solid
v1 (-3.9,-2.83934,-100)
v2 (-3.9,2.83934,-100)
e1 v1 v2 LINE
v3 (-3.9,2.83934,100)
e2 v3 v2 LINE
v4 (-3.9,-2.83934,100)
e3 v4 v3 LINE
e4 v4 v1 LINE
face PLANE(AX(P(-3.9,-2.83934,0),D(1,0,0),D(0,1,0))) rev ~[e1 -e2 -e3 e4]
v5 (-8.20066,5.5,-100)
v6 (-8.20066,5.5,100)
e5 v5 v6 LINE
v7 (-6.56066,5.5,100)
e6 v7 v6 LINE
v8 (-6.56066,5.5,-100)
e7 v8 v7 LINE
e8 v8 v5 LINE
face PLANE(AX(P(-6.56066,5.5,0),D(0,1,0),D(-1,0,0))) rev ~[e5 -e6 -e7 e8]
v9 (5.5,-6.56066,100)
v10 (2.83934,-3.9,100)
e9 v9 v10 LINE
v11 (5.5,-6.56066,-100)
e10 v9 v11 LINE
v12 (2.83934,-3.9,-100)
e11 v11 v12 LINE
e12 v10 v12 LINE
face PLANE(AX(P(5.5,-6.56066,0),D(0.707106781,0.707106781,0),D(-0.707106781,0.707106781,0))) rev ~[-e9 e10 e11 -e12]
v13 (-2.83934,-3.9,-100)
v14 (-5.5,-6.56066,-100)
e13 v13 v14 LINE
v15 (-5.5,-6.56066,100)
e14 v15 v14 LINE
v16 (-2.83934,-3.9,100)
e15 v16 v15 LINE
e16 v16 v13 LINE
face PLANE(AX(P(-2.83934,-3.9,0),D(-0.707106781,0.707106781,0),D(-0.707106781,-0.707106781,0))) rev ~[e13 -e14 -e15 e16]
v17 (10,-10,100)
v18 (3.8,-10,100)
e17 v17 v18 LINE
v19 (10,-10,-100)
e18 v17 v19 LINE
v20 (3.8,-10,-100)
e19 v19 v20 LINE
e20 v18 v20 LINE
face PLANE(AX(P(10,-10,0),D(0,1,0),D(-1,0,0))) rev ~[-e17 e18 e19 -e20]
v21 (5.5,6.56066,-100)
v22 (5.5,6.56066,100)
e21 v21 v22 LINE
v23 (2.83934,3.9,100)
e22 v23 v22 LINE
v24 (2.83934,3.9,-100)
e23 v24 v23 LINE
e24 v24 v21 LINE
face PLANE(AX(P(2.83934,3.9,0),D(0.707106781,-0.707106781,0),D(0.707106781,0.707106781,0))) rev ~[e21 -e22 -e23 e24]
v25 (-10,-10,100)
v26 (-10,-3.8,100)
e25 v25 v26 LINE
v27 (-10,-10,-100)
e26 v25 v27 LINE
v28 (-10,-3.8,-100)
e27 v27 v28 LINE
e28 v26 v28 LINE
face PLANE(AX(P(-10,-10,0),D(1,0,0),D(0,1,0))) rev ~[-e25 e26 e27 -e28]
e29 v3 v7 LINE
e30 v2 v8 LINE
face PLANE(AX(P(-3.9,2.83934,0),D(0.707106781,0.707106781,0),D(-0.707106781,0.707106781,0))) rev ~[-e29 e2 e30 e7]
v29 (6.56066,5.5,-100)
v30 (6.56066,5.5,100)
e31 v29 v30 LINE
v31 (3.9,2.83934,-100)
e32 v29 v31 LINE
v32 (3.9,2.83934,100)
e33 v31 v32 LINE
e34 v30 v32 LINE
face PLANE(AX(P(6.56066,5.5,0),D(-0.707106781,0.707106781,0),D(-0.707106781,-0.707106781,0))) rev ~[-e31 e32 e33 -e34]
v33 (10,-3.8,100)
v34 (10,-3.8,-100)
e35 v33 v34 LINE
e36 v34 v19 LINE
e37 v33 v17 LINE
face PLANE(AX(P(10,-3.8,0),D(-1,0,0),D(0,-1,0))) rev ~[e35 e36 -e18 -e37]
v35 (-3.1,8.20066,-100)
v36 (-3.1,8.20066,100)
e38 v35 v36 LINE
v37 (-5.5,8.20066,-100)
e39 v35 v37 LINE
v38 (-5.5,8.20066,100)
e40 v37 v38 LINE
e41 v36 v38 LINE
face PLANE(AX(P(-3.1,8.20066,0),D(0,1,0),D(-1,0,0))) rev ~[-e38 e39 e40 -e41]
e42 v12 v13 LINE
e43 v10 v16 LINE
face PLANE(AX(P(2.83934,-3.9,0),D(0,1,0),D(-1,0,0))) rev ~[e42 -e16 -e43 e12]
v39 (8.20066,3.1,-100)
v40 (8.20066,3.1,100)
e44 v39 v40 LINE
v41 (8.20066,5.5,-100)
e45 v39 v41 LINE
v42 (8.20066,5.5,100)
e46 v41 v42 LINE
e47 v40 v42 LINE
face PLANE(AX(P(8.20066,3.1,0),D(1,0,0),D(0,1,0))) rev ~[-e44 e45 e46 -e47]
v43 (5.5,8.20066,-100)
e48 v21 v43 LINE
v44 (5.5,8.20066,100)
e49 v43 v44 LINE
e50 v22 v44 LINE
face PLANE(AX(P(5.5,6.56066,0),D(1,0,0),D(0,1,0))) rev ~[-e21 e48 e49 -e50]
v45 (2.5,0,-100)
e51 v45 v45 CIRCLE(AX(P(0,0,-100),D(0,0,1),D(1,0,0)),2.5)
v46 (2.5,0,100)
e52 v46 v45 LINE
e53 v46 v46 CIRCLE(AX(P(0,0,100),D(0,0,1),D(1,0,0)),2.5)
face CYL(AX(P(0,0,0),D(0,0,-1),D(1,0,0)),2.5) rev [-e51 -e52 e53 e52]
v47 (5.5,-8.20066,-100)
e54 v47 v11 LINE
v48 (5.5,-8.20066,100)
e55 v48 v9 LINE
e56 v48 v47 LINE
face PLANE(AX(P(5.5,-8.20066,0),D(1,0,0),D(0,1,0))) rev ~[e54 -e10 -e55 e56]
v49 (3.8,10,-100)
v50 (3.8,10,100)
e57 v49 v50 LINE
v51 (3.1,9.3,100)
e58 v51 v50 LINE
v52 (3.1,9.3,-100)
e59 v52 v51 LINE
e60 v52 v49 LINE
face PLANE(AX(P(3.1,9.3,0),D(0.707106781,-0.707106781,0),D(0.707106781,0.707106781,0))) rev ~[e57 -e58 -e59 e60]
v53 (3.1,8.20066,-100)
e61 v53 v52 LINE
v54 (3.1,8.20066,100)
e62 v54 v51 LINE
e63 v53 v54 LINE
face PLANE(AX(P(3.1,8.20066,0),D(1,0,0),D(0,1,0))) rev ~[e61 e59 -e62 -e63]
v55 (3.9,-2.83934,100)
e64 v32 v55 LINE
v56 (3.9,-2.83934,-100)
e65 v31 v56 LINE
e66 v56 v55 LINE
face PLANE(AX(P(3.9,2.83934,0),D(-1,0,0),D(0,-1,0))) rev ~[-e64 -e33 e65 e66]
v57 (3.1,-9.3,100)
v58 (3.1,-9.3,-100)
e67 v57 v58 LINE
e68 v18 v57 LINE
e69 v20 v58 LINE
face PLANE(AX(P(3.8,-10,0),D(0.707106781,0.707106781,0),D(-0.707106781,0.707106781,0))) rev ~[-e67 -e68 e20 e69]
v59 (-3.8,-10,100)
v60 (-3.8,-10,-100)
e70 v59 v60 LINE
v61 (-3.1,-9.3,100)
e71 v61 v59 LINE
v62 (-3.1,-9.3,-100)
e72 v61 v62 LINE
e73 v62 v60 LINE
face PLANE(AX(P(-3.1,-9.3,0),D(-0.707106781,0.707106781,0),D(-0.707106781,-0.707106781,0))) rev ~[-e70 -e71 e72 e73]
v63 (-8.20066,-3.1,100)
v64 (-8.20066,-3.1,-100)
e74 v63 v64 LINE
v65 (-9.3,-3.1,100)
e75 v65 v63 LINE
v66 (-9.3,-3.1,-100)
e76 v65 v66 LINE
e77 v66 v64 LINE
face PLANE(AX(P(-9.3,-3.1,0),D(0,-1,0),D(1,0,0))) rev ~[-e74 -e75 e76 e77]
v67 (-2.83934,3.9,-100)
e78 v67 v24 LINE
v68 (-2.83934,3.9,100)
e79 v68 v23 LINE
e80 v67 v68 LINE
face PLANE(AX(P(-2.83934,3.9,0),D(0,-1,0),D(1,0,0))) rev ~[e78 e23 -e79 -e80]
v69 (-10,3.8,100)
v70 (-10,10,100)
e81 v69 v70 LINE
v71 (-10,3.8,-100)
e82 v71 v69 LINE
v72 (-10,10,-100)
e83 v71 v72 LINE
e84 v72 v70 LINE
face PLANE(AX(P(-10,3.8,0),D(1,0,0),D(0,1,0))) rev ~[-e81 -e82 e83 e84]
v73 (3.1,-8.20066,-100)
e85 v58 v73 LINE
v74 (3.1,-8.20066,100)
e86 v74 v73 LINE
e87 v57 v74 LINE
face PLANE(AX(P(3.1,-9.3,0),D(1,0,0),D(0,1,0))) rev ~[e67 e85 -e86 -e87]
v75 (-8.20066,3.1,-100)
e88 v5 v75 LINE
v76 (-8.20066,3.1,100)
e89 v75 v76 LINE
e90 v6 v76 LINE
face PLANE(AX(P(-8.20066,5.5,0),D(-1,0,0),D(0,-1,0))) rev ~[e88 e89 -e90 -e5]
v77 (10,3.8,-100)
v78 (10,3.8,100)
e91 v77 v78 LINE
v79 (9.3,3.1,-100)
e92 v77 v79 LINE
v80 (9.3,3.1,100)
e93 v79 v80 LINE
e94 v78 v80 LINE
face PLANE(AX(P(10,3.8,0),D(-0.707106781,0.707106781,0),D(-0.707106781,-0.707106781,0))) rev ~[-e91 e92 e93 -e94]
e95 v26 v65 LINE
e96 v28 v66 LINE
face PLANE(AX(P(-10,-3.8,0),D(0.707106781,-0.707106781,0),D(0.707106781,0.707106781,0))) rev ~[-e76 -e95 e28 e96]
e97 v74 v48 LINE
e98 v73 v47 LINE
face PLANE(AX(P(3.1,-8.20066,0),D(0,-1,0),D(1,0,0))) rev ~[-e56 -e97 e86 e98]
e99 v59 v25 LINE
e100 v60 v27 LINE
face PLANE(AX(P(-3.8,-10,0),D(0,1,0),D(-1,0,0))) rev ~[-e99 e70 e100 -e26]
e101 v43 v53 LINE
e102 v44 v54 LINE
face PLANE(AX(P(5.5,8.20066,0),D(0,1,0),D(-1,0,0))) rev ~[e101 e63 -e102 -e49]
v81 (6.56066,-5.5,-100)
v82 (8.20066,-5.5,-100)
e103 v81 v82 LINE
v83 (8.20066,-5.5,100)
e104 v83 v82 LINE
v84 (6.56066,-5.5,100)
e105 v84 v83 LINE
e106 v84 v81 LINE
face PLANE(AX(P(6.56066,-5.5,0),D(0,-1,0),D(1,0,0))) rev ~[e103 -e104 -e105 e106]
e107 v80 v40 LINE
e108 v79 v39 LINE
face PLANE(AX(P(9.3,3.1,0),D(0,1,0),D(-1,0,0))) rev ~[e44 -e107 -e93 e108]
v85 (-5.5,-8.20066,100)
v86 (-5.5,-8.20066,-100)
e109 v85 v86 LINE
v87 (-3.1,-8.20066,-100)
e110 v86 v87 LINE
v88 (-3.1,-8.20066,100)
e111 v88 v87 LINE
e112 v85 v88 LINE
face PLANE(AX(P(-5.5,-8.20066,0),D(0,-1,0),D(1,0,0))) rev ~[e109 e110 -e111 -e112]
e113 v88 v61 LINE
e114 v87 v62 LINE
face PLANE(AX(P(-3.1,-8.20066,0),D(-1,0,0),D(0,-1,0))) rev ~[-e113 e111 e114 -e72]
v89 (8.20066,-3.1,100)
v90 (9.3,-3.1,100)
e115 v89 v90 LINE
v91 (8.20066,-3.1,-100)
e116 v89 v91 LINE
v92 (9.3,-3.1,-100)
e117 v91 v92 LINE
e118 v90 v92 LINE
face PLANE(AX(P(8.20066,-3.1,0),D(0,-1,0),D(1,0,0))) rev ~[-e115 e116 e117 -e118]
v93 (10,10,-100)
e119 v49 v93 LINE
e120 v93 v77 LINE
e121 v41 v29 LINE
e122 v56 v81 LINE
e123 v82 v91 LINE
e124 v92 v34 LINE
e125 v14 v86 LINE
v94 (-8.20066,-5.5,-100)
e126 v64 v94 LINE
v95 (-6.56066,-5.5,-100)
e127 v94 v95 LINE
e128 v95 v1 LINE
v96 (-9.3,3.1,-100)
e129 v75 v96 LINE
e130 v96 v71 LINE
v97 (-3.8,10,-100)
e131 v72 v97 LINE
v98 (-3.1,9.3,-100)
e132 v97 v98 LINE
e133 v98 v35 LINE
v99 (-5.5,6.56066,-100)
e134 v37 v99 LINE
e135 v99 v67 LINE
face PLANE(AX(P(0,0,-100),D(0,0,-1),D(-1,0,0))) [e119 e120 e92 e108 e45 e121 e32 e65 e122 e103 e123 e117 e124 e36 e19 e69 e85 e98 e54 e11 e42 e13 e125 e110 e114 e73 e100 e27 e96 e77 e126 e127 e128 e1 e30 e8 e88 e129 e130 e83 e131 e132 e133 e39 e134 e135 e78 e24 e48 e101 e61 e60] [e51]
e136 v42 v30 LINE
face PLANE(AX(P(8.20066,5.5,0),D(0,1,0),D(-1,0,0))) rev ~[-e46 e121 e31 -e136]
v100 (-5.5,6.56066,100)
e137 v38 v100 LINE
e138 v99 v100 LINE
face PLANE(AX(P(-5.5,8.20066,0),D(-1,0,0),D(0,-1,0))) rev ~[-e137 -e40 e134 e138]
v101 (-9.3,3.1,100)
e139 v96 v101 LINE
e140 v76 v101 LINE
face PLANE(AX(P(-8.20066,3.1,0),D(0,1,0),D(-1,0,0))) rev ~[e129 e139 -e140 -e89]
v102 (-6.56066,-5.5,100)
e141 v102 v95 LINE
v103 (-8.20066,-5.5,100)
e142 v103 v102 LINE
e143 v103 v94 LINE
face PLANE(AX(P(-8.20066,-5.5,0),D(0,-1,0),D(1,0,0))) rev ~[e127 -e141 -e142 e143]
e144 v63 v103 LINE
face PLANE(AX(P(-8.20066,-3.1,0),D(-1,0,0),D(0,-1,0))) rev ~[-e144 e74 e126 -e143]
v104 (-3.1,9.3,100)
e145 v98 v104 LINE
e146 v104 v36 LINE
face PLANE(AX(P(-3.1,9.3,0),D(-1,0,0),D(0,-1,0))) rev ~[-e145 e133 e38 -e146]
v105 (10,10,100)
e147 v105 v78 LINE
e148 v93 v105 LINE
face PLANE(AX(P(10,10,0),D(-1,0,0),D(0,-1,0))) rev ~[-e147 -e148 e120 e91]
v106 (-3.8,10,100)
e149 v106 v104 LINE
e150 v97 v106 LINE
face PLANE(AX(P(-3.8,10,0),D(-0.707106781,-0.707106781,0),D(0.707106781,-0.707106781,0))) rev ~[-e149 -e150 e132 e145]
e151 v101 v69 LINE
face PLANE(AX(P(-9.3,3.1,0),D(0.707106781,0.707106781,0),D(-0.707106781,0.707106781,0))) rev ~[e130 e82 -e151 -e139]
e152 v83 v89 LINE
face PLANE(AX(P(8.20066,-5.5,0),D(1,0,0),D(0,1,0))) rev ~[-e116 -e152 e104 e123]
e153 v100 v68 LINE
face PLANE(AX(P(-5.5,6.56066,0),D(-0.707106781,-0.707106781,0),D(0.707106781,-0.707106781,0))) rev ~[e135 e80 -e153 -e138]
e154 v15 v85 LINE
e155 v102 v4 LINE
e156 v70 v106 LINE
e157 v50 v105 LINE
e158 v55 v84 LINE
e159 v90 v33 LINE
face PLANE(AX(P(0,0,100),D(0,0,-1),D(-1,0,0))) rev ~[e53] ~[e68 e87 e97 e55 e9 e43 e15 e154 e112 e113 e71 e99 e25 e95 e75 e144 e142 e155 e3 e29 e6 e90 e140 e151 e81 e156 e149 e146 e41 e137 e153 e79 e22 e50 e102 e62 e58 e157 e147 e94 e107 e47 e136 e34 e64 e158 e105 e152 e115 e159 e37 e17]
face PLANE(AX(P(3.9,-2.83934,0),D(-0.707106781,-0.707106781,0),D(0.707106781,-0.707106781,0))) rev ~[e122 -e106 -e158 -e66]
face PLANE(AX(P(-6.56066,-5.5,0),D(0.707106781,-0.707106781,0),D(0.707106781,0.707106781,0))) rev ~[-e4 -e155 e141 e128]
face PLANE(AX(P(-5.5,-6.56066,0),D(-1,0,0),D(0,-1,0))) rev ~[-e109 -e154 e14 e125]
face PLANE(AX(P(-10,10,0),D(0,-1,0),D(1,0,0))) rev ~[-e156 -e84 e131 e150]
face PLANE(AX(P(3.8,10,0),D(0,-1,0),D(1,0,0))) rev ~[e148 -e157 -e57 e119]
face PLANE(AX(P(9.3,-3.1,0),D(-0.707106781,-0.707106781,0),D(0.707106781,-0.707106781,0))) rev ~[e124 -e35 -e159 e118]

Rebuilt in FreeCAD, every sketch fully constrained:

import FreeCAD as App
import Part
import Sketcher
Q = App.Units.Quantity

doc = App.newDocument("Part")
body = doc.addObject("PartDesign::Body", "Body")

# Sketch on XY plane
sketch1 = body.newObject("Sketcher::SketchObject", "Sketch")
sketch1.AttachmentSupport = (doc.getObject("XY_Plane"), [""])
sketch1.MapMode = "FlatFace"
sketch1.addGeometry([
    Part.LineSegment(App.Vector(6.56066, -5.5, 0), App.Vector(3.9, -2.83934, 0)),  # 0
    Part.LineSegment(App.Vector(3.9, -2.83934, 0), App.Vector(3.9, 2.83934, 0)),  # 1
    Part.LineSegment(App.Vector(3.9, 2.83934, 0), App.Vector(6.56066, 5.5, 0)),  # 2
    Part.LineSegment(App.Vector(6.56066, 5.5, 0), App.Vector(8.20066, 5.5, 0)),  # 3
    Part.LineSegment(App.Vector(8.20066, 5.5, 0), App.Vector(8.20066, 3.1, 0)),  # 4
    Part.LineSegment(App.Vector(8.20066, 3.1, 0), App.Vector(9.3, 3.1, 0)),  # 5
    Part.LineSegment(App.Vector(9.3, 3.1, 0), App.Vector(10, 3.8, 0)),  # 6
    Part.LineSegment(App.Vector(10, 3.8, 0), App.Vector(10, 10, 0)),  # 7
    Part.LineSegment(App.Vector(10, 10, 0), App.Vector(3.8, 10, 0)),  # 8
    Part.LineSegment(App.Vector(3.8, 10, 0), App.Vector(3.1, 9.3, 0)),  # 9
    Part.LineSegment(App.Vector(3.1, 9.3, 0), App.Vector(3.1, 8.20066, 0)),  # 10
    Part.LineSegment(App.Vector(3.1, 8.20066, 0), App.Vector(5.5, 8.20066, 0)),  # 11
    Part.LineSegment(App.Vector(5.5, 8.20066, 0), App.Vector(5.5, 6.56066, 0)),  # 12
    Part.LineSegment(App.Vector(5.5, 6.56066, 0), App.Vector(2.83934, 3.9, 0)),  # 13
    Part.LineSegment(App.Vector(2.83934, 3.9, 0), App.Vector(-2.83934, 3.9, 0)),  # 14
    Part.LineSegment(App.Vector(-2.83934, 3.9, 0), App.Vector(-5.5, 6.56066, 0)),  # 15
    Part.LineSegment(App.Vector(-5.5, 6.56066, 0), App.Vector(-5.5, 8.20066, 0)),  # 16
    Part.LineSegment(App.Vector(-5.5, 8.20066, 0), App.Vector(-3.1, 8.20066, 0)),  # 17
    Part.LineSegment(App.Vector(-3.1, 8.20066, 0), App.Vector(-3.1, 9.3, 0)),  # 18
    Part.LineSegment(App.Vector(-3.1, 9.3, 0), App.Vector(-3.8, 10, 0)),  # 19
    Part.LineSegment(App.Vector(-3.8, 10, 0), App.Vector(-10, 10, 0)),  # 20
    Part.LineSegment(App.Vector(-10, 10, 0), App.Vector(-10, 3.8, 0)),  # 21
    Part.LineSegment(App.Vector(-10, 3.8, 0), App.Vector(-9.3, 3.1, 0)),  # 22
    Part.LineSegment(App.Vector(-9.3, 3.1, 0), App.Vector(-8.20066, 3.1, 0)),  # 23
    Part.LineSegment(App.Vector(-8.20066, 3.1, 0), App.Vector(-8.20066, 5.5, 0)),  # 24
    Part.LineSegment(App.Vector(-8.20066, 5.5, 0), App.Vector(-6.56066, 5.5, 0)),  # 25
    Part.LineSegment(App.Vector(-6.56066, 5.5, 0), App.Vector(-3.9, 2.83934, 0)),  # 26
    Part.LineSegment(App.Vector(-3.9, 2.83934, 0), App.Vector(-3.9, -2.83934, 0)),  # 27
    Part.LineSegment(App.Vector(-3.9, -2.83934, 0), App.Vector(-6.56066, -5.5, 0)),  # 28
    Part.LineSegment(App.Vector(-6.56066, -5.5, 0), App.Vector(-8.20066, -5.5, 0)),  # 29
    Part.LineSegment(App.Vector(-8.20066, -5.5, 0), App.Vector(-8.20066, -3.1, 0)),  # 30
    Part.LineSegment(App.Vector(-8.20066, -3.1, 0), App.Vector(-9.3, -3.1, 0)),  # 31
    Part.LineSegment(App.Vector(-9.3, -3.1, 0), App.Vector(-10, -3.8, 0)),  # 32
    Part.LineSegment(App.Vector(-10, -3.8, 0), App.Vector(-10, -10, 0)),  # 33
    Part.LineSegment(App.Vector(-10, -10, 0), App.Vector(-3.8, -10, 0)),  # 34
    Part.LineSegment(App.Vector(-3.8, -10, 0), App.Vector(-3.1, -9.3, 0)),  # 35
    Part.LineSegment(App.Vector(-3.1, -9.3, 0), App.Vector(-3.1, -8.20066, 0)),  # 36
    Part.LineSegment(App.Vector(-3.1, -8.20066, 0), App.Vector(-5.5, -8.20066, 0)),  # 37
    Part.LineSegment(App.Vector(-5.5, -8.20066, 0), App.Vector(-5.5, -6.56066, 0)),  # 38
    Part.LineSegment(App.Vector(-5.5, -6.56066, 0), App.Vector(-2.83934, -3.9, 0)),  # 39
    Part.LineSegment(App.Vector(-2.83934, -3.9, 0), App.Vector(2.83934, -3.9, 0)),  # 40
    Part.LineSegment(App.Vector(2.83934, -3.9, 0), App.Vector(5.5, -6.56066, 0)),  # 41
    Part.LineSegment(App.Vector(5.5, -6.56066, 0), App.Vector(5.5, -8.20066, 0)),  # 42
    Part.LineSegment(App.Vector(5.5, -8.20066, 0), App.Vector(3.1, -8.20066, 0)),  # 43
    Part.LineSegment(App.Vector(3.1, -8.20066, 0), App.Vector(3.1, -9.3, 0)),  # 44
    Part.LineSegment(App.Vector(3.1, -9.3, 0), App.Vector(3.8, -10, 0)),  # 45
    Part.LineSegment(App.Vector(3.8, -10, 0), App.Vector(10, -10, 0)),  # 46
    Part.LineSegment(App.Vector(10, -10, 0), App.Vector(10, -3.8, 0)),  # 47
    Part.LineSegment(App.Vector(10, -3.8, 0), App.Vector(9.3, -3.1, 0)),  # 48
    Part.LineSegment(App.Vector(9.3, -3.1, 0), App.Vector(8.20066, -3.1, 0)),  # 49
    Part.LineSegment(App.Vector(8.20066, -3.1, 0), App.Vector(8.20066, -5.5, 0)),  # 50
    Part.LineSegment(App.Vector(8.20066, -5.5, 0), App.Vector(6.56066, -5.5, 0)),  # 51
    Part.Circle(App.Vector(0, 0, 0), App.Vector(0, 0, 1), 2.5),  # 52
], False)
sketch1.addConstraint([
    Sketcher.Constraint("Coincident", 0, 2, 1, 1),
    Sketcher.Constraint("Coincident", 1, 2, 2, 1),
    Sketcher.Constraint("Coincident", 2, 2, 3, 1),
    Sketcher.Constraint("Coincident", 3, 2, 4, 1),
    Sketcher.Constraint("Coincident", 4, 2, 5, 1),
    Sketcher.Constraint("Coincident", 5, 2, 6, 1),
    Sketcher.Constraint("Coincident", 6, 2, 7, 1),
    Sketcher.Constraint("Coincident", 7, 2, 8, 1),
    Sketcher.Constraint("Coincident", 8, 2, 9, 1),
    Sketcher.Constraint("Coincident", 9, 2, 10, 1),
    Sketcher.Constraint("Coincident", 10, 2, 11, 1),
    Sketcher.Constraint("Coincident", 11, 2, 12, 1),
    Sketcher.Constraint("Coincident", 12, 2, 13, 1),
    Sketcher.Constraint("Coincident", 13, 2, 14, 1),
    Sketcher.Constraint("Coincident", 14, 2, 15, 1),
    Sketcher.Constraint("Coincident", 15, 2, 16, 1),
    Sketcher.Constraint("Coincident", 16, 2, 17, 1),
    Sketcher.Constraint("Coincident", 17, 2, 18, 1),
    Sketcher.Constraint("Coincident", 18, 2, 19, 1),
    Sketcher.Constraint("Coincident", 19, 2, 20, 1),
    Sketcher.Constraint("Coincident", 20, 2, 21, 1),
    Sketcher.Constraint("Coincident", 21, 2, 22, 1),
    Sketcher.Constraint("Coincident", 22, 2, 23, 1),
    Sketcher.Constraint("Coincident", 23, 2, 24, 1),
    Sketcher.Constraint("Coincident", 24, 2, 25, 1),
    Sketcher.Constraint("Coincident", 25, 2, 26, 1),
    Sketcher.Constraint("Coincident", 26, 2, 27, 1),
    Sketcher.Constraint("Coincident", 27, 2, 28, 1),
    Sketcher.Constraint("Coincident", 28, 2, 29, 1),
    Sketcher.Constraint("Coincident", 29, 2, 30, 1),
    Sketcher.Constraint("Coincident", 30, 2, 31, 1),
    Sketcher.Constraint("Coincident", 31, 2, 32, 1),
    Sketcher.Constraint("Coincident", 32, 2, 33, 1),
    Sketcher.Constraint("Coincident", 33, 2, 34, 1),
    Sketcher.Constraint("Coincident", 34, 2, 35, 1),
    Sketcher.Constraint("Coincident", 35, 2, 36, 1),
    Sketcher.Constraint("Coincident", 36, 2, 37, 1),
    Sketcher.Constraint("Coincident", 37, 2, 38, 1),
    Sketcher.Constraint("Coincident", 38, 2, 39, 1),
    Sketcher.Constraint("Coincident", 39, 2, 40, 1),
    Sketcher.Constraint("Coincident", 40, 2, 41, 1),
    Sketcher.Constraint("Coincident", 41, 2, 42, 1),
    Sketcher.Constraint("Coincident", 42, 2, 43, 1),
    Sketcher.Constraint("Coincident", 43, 2, 44, 1),
    Sketcher.Constraint("Coincident", 44, 2, 45, 1),
    Sketcher.Constraint("Coincident", 45, 2, 46, 1),
    Sketcher.Constraint("Coincident", 46, 2, 47, 1),
    Sketcher.Constraint("Coincident", 47, 2, 48, 1),
    Sketcher.Constraint("Coincident", 48, 2, 49, 1),
    Sketcher.Constraint("Coincident", 49, 2, 50, 1),
    Sketcher.Constraint("Coincident", 50, 2, 51, 1),
    Sketcher.Constraint("Coincident", 51, 2, 0, 1),
    Sketcher.Constraint("Vertical", 1),
    Sketcher.Constraint("Horizontal", 3),
    Sketcher.Constraint("Vertical", 4),
    Sketcher.Constraint("Horizontal", 5),
    Sketcher.Constraint("Vertical", 7),
    Sketcher.Constraint("Horizontal", 8),
    Sketcher.Constraint("Vertical", 10),
    Sketcher.Constraint("Horizontal", 11),
    Sketcher.Constraint("Vertical", 12),
    Sketcher.Constraint("Horizontal", 14),
    Sketcher.Constraint("Vertical", 16),
    Sketcher.Constraint("Horizontal", 17),
    Sketcher.Constraint("Vertical", 18),
    Sketcher.Constraint("Horizontal", 20),
    Sketcher.Constraint("Vertical", 21),
    Sketcher.Constraint("Horizontal", 23),
    Sketcher.Constraint("Vertical", 24),
    Sketcher.Constraint("Horizontal", 25),
    Sketcher.Constraint("Vertical", 27),
    Sketcher.Constraint("Horizontal", 29),
    Sketcher.Constraint("Vertical", 30),
    Sketcher.Constraint("Horizontal", 31),
    Sketcher.Constraint("Vertical", 33),
    Sketcher.Constraint("Horizontal", 34),
    Sketcher.Constraint("Vertical", 36),
    Sketcher.Constraint("Horizontal", 37),
    Sketcher.Constraint("Vertical", 38),
    Sketcher.Constraint("Horizontal", 40),
    Sketcher.Constraint("Vertical", 42),
    Sketcher.Constraint("Horizontal", 43),
    Sketcher.Constraint("Vertical", 44),
    Sketcher.Constraint("Horizontal", 46),
    Sketcher.Constraint("Vertical", 47),
    Sketcher.Constraint("Horizontal", 49),
    Sketcher.Constraint("Vertical", 50),
    Sketcher.Constraint("Horizontal", 51),
    Sketcher.Constraint("Coincident", 52, 3, -1, 1),
    Sketcher.Constraint("Symmetric", 0, 2, 26, 2, -1, 1),
    Sketcher.Constraint("Symmetric", 2, 2, 28, 2, -1, 1),
    Sketcher.Constraint("Symmetric", 4, 2, 30, 2, -1, 1),
    Sketcher.Constraint("Symmetric", 6, 2, 32, 2, -1, 1),
    Sketcher.Constraint("Symmetric", 8, 2, 34, 2, -1, 1),
    Sketcher.Constraint("Symmetric", 9, 2, 35, 2, -1, 1),
    Sketcher.Constraint("Symmetric", 11, 2, 37, 2, -1, 1),
    Sketcher.Constraint("Symmetric", 13, 2, 39, 2, -1, 1),
    Sketcher.Constraint("Symmetric", 15, 2, 41, 2, -1, 1),
    Sketcher.Constraint("Symmetric", 17, 2, 43, 2, -1, 1),
    Sketcher.Constraint("Symmetric", 19, 2, 45, 2, -1, 1),
    Sketcher.Constraint("Symmetric", 21, 2, 47, 2, -1, 1),
    Sketcher.Constraint("Symmetric", 22, 2, 48, 2, -1, 1),
    Sketcher.Constraint("Symmetric", 24, 2, 50, 2, -1, 1),
    Sketcher.Constraint("Symmetric", 12, 2, 15, 2, -2),
    Sketcher.Constraint("Symmetric", 10, 2, 17, 2, -2),
    Sketcher.Constraint("Symmetric", 8, 2, 19, 2, -2),
    Sketcher.Constraint("Symmetric", 6, 2, 21, 2, -2),
    Sketcher.Constraint("Symmetric", 5, 2, 22, 2, -2),
    Sketcher.Constraint("Symmetric", 3, 2, 24, 2, -2),
    Sketcher.Constraint("Perpendicular", 0, 2),
    Sketcher.Constraint("Parallel", 2, 6),
    Sketcher.Constraint("Parallel", 6, 9),
    Sketcher.Constraint("Parallel", 9, 13),
    Sketcher.Constraint("Perpendicular", 13, 15),
    Sketcher.Constraint("Parallel", 15, 19),
    Sketcher.Constraint("Parallel", 19, 22),
    Sketcher.Constraint("Parallel", 22, 26),
    Sketcher.Constraint("Perpendicular", 26, 28),
    Sketcher.Constraint("Parallel", 28, 32),
    Sketcher.Constraint("Parallel", 35, 39),
    Sketcher.Constraint("Perpendicular", 39, 41),
    Sketcher.Constraint("Parallel", 41, 45),
    Sketcher.Constraint("Horizontal", 1, 2, 26, 2),
    Sketcher.Constraint("Equal", 40, 1),
    Sketcher.Constraint("Equal", 43, 4),
    Sketcher.Constraint("Equal", 46, 7),
    Sketcher.Constraint("Equal", 49, 10),
    Sketcher.Constraint("Equal", 51, 12),
    Sketcher.Constraint("Equal", 6, 9),
    Sketcher.Constraint("Equal", 2, 13),
    Sketcher.Constraint("Diameter", 52, Q("5 mm")),
    Sketcher.Constraint("DistanceX", 8, 2, 8, 1, Q("6.2 mm")),
    Sketcher.Constraint("DistanceX", 11, 1, 11, 2, Q("2.4 mm")),
    Sketcher.Constraint("DistanceX", -1, 1, 6, 2, Q("10 mm")),
    Sketcher.Constraint("DistanceX", 3, 1, 3, 2, Q("1.64 mm")),
    Sketcher.Constraint("DistanceX", -1, 1, 0, 2, Q("3.9 mm")),
    Sketcher.Constraint("DistanceY", -1, 1, 2, 2, Q("5.5 mm")),
    Sketcher.Constraint("DistanceX", 5, 1, 5, 2, Q("1.09934 mm")),
])
pad1 = body.newObject("PartDesign::Pad", "Pad")
pad1.Profile = sketch1
pad1.Length = 200
pad1.Midplane = True

doc.recompute()
